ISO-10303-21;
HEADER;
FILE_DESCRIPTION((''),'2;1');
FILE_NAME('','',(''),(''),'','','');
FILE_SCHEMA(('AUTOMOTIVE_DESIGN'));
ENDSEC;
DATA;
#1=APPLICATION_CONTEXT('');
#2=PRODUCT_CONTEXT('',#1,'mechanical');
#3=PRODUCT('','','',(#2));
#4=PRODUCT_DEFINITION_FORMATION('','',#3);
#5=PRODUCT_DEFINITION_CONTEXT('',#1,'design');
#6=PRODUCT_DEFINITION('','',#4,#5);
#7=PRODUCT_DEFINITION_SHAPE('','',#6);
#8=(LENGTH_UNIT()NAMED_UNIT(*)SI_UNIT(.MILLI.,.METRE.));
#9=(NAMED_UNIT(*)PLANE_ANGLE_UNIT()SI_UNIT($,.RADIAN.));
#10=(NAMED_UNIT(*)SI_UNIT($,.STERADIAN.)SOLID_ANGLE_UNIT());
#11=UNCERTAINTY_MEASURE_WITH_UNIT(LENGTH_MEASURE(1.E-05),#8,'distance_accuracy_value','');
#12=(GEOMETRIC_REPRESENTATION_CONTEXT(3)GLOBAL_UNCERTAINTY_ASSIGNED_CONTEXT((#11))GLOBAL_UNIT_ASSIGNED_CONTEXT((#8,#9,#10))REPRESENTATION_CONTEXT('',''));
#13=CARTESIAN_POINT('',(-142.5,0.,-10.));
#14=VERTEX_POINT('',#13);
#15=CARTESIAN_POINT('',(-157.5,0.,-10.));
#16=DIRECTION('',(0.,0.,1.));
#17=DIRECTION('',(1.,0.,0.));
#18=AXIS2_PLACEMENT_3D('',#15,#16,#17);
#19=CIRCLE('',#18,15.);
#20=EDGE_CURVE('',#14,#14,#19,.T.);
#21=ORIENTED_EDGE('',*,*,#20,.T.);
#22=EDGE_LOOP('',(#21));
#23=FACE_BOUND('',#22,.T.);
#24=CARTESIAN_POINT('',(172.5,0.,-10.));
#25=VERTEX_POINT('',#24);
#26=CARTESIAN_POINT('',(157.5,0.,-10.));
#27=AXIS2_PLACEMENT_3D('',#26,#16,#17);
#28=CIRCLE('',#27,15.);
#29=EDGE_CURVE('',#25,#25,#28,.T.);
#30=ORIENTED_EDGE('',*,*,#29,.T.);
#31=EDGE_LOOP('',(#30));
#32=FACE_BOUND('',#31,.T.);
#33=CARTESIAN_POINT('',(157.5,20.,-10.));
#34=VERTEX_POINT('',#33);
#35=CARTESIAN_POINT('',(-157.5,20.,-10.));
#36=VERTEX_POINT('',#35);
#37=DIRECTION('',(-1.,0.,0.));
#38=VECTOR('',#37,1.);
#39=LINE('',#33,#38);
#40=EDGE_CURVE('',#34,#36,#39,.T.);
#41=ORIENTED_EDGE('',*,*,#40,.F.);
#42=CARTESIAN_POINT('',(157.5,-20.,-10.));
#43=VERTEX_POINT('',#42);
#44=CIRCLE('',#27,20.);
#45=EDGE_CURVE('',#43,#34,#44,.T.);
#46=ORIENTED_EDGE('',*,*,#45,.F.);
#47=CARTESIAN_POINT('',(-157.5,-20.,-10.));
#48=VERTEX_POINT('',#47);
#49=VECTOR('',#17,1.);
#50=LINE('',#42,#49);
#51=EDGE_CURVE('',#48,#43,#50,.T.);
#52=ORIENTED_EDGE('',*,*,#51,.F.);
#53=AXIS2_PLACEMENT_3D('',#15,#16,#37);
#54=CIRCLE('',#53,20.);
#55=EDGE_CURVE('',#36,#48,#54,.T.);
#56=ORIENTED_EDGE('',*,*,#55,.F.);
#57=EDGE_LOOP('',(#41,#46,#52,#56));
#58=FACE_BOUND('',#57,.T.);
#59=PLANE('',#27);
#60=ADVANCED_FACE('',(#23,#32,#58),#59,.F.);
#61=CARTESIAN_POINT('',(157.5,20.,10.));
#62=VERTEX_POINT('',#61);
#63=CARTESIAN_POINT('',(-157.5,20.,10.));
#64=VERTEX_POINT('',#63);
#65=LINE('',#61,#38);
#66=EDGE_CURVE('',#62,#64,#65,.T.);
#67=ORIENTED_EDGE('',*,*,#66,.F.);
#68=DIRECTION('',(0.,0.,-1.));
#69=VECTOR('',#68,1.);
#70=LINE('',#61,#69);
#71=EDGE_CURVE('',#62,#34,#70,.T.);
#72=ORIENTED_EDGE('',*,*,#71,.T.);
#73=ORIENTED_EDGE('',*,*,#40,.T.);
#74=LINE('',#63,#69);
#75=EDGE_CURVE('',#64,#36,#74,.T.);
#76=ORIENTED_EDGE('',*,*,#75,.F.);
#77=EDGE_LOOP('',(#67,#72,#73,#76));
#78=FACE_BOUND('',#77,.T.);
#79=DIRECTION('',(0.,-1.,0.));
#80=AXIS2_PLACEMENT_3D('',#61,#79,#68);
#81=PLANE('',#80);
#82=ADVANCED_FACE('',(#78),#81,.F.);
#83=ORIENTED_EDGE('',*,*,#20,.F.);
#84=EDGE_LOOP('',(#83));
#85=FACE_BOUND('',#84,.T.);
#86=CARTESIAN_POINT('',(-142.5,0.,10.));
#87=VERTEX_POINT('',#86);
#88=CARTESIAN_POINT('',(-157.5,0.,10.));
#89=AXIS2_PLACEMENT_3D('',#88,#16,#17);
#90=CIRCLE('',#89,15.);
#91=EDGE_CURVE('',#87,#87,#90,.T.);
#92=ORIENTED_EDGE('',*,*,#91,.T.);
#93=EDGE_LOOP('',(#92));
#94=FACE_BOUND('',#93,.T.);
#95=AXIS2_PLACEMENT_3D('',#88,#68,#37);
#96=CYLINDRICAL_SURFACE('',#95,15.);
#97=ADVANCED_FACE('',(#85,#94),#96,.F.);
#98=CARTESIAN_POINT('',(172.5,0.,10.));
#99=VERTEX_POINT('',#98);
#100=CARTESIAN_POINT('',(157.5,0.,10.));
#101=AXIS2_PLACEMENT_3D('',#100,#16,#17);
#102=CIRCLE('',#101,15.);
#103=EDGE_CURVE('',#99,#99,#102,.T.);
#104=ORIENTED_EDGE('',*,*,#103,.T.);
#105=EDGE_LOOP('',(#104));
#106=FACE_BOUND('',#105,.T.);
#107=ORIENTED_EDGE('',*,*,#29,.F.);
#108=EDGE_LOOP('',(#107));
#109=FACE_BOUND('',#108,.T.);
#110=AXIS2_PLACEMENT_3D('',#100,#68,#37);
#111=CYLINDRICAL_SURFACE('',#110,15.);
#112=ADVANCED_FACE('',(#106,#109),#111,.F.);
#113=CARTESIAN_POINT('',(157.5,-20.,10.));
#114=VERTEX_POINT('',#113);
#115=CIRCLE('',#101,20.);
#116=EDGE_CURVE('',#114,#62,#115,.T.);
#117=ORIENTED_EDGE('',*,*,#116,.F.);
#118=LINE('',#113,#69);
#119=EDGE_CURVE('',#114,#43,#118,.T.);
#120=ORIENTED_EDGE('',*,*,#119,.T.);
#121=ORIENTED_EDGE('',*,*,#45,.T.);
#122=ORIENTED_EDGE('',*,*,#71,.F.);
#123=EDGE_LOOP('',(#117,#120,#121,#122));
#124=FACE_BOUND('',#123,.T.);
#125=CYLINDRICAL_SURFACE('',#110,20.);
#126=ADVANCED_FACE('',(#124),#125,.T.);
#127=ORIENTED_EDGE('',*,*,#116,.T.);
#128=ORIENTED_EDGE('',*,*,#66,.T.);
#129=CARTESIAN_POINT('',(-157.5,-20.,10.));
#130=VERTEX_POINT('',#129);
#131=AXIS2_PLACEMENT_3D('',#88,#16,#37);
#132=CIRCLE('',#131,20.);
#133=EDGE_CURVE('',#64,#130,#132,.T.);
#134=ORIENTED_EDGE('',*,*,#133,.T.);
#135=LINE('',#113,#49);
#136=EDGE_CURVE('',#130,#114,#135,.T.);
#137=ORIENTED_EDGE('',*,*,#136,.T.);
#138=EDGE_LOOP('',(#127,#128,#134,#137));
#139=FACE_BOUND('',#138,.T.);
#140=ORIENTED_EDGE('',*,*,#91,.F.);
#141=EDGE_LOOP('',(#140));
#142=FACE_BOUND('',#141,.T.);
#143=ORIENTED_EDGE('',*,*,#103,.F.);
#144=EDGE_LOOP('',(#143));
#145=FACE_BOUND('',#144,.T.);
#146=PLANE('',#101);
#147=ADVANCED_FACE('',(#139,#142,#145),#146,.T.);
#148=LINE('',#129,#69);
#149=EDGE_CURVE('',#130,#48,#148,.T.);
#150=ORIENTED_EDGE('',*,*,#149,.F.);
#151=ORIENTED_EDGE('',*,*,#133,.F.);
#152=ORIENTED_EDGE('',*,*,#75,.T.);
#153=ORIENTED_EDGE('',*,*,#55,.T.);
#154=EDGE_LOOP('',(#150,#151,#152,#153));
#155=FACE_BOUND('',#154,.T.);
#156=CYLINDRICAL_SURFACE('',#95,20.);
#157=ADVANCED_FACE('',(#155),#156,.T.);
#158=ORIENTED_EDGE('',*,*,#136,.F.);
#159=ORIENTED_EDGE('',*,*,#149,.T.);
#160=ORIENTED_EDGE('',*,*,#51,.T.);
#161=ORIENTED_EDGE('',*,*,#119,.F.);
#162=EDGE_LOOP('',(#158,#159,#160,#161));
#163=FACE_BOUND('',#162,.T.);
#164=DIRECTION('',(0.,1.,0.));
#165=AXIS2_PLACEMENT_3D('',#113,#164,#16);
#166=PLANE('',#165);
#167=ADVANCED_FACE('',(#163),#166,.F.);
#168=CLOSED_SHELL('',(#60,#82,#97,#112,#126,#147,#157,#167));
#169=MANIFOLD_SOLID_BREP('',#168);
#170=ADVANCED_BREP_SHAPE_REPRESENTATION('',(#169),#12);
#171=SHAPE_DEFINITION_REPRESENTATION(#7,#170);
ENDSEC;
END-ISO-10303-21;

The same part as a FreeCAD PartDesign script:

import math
import FreeCAD as App
import Part
import Sketcher
from FreeCAD import Vector
Q = App.Units.Quantity

doc = App.newDocument("Part")
body = doc.addObject("PartDesign::Body", "Body")

# Sketch on XY plane
sketch1 = body.newObject("Sketcher::SketchObject", "Sketch")
sketch1.AttachmentSupport = (doc.getObject("XY_Plane"), [""])
sketch1.MapMode = "FlatFace"
sketch1.addGeometry(Part.LineSegment(Vector(-158, -20, 0), Vector(158, -20, 0)), False)
sketch1.addGeometry(Part.ArcOfCircle(Part.Circle(Vector(158, 0, 0), Vector(0, 0, 1), 20), math.radians(-90), math.radians(90)), False)
sketch1.addGeometry(Part.LineSegment(Vector(158, 20, 0), Vector(-158, 20, 0)), False)
sketch1.addGeometry(Part.ArcOfCircle(Part.Circle(Vector(-158, 0, 0), Vector(0, 0, 1), 20), math.radians(90), math.radians(270)), False)
sketch1.addGeometry(Part.Circle(Vector(158, 0, 0), Vector(0, 0, 1), 15), False)
sketch1.addGeometry(Part.Circle(Vector(-158, 0, 0), Vector(0, 0, 1), 15), False)
sketch1.addConstraint(Sketcher.Constraint("Tangent", 0, 2, 1, 1))
sketch1.addConstraint(Sketcher.Constraint("Tangent", 1, 2, 2, 1))
sketch1.addConstraint(Sketcher.Constraint("Tangent", 2, 2, 3, 1))
sketch1.addConstraint(Sketcher.Constraint("Tangent", 3, 2, 0, 1))
sketch1.addConstraint(Sketcher.Constraint("Horizontal", 0))
sketch1.addConstraint(Sketcher.Constraint("Horizontal", 2))
sketch1.addConstraint(Sketcher.Constraint("Coincident", 4, 3, 1, 3))
sketch1.addConstraint(Sketcher.Constraint("Coincident", 5, 3, 3, 3))
sketch1.addConstraint(Sketcher.Constraint("Equal", 4, 5))
sketch1.addConstraint(Sketcher.Constraint("Symmetric", 1, 3, 3, 3, -1, 1))
sketch1.addConstraint(Sketcher.Constraint("Diameter", 4, Q("30 mm")))
sketch1.addConstraint(Sketcher.Constraint("Radius", 1, Q("20 mm")))
sketch1.addConstraint(Sketcher.Constraint("DistanceX", 0, 1, 0, 2, Q("315 mm")))
pad1 = body.newObject("PartDesign::Pad", "Pad")
pad1.Profile = sketch1
pad1.Length = 20
pad1.Midplane = True

doc.recompute()
